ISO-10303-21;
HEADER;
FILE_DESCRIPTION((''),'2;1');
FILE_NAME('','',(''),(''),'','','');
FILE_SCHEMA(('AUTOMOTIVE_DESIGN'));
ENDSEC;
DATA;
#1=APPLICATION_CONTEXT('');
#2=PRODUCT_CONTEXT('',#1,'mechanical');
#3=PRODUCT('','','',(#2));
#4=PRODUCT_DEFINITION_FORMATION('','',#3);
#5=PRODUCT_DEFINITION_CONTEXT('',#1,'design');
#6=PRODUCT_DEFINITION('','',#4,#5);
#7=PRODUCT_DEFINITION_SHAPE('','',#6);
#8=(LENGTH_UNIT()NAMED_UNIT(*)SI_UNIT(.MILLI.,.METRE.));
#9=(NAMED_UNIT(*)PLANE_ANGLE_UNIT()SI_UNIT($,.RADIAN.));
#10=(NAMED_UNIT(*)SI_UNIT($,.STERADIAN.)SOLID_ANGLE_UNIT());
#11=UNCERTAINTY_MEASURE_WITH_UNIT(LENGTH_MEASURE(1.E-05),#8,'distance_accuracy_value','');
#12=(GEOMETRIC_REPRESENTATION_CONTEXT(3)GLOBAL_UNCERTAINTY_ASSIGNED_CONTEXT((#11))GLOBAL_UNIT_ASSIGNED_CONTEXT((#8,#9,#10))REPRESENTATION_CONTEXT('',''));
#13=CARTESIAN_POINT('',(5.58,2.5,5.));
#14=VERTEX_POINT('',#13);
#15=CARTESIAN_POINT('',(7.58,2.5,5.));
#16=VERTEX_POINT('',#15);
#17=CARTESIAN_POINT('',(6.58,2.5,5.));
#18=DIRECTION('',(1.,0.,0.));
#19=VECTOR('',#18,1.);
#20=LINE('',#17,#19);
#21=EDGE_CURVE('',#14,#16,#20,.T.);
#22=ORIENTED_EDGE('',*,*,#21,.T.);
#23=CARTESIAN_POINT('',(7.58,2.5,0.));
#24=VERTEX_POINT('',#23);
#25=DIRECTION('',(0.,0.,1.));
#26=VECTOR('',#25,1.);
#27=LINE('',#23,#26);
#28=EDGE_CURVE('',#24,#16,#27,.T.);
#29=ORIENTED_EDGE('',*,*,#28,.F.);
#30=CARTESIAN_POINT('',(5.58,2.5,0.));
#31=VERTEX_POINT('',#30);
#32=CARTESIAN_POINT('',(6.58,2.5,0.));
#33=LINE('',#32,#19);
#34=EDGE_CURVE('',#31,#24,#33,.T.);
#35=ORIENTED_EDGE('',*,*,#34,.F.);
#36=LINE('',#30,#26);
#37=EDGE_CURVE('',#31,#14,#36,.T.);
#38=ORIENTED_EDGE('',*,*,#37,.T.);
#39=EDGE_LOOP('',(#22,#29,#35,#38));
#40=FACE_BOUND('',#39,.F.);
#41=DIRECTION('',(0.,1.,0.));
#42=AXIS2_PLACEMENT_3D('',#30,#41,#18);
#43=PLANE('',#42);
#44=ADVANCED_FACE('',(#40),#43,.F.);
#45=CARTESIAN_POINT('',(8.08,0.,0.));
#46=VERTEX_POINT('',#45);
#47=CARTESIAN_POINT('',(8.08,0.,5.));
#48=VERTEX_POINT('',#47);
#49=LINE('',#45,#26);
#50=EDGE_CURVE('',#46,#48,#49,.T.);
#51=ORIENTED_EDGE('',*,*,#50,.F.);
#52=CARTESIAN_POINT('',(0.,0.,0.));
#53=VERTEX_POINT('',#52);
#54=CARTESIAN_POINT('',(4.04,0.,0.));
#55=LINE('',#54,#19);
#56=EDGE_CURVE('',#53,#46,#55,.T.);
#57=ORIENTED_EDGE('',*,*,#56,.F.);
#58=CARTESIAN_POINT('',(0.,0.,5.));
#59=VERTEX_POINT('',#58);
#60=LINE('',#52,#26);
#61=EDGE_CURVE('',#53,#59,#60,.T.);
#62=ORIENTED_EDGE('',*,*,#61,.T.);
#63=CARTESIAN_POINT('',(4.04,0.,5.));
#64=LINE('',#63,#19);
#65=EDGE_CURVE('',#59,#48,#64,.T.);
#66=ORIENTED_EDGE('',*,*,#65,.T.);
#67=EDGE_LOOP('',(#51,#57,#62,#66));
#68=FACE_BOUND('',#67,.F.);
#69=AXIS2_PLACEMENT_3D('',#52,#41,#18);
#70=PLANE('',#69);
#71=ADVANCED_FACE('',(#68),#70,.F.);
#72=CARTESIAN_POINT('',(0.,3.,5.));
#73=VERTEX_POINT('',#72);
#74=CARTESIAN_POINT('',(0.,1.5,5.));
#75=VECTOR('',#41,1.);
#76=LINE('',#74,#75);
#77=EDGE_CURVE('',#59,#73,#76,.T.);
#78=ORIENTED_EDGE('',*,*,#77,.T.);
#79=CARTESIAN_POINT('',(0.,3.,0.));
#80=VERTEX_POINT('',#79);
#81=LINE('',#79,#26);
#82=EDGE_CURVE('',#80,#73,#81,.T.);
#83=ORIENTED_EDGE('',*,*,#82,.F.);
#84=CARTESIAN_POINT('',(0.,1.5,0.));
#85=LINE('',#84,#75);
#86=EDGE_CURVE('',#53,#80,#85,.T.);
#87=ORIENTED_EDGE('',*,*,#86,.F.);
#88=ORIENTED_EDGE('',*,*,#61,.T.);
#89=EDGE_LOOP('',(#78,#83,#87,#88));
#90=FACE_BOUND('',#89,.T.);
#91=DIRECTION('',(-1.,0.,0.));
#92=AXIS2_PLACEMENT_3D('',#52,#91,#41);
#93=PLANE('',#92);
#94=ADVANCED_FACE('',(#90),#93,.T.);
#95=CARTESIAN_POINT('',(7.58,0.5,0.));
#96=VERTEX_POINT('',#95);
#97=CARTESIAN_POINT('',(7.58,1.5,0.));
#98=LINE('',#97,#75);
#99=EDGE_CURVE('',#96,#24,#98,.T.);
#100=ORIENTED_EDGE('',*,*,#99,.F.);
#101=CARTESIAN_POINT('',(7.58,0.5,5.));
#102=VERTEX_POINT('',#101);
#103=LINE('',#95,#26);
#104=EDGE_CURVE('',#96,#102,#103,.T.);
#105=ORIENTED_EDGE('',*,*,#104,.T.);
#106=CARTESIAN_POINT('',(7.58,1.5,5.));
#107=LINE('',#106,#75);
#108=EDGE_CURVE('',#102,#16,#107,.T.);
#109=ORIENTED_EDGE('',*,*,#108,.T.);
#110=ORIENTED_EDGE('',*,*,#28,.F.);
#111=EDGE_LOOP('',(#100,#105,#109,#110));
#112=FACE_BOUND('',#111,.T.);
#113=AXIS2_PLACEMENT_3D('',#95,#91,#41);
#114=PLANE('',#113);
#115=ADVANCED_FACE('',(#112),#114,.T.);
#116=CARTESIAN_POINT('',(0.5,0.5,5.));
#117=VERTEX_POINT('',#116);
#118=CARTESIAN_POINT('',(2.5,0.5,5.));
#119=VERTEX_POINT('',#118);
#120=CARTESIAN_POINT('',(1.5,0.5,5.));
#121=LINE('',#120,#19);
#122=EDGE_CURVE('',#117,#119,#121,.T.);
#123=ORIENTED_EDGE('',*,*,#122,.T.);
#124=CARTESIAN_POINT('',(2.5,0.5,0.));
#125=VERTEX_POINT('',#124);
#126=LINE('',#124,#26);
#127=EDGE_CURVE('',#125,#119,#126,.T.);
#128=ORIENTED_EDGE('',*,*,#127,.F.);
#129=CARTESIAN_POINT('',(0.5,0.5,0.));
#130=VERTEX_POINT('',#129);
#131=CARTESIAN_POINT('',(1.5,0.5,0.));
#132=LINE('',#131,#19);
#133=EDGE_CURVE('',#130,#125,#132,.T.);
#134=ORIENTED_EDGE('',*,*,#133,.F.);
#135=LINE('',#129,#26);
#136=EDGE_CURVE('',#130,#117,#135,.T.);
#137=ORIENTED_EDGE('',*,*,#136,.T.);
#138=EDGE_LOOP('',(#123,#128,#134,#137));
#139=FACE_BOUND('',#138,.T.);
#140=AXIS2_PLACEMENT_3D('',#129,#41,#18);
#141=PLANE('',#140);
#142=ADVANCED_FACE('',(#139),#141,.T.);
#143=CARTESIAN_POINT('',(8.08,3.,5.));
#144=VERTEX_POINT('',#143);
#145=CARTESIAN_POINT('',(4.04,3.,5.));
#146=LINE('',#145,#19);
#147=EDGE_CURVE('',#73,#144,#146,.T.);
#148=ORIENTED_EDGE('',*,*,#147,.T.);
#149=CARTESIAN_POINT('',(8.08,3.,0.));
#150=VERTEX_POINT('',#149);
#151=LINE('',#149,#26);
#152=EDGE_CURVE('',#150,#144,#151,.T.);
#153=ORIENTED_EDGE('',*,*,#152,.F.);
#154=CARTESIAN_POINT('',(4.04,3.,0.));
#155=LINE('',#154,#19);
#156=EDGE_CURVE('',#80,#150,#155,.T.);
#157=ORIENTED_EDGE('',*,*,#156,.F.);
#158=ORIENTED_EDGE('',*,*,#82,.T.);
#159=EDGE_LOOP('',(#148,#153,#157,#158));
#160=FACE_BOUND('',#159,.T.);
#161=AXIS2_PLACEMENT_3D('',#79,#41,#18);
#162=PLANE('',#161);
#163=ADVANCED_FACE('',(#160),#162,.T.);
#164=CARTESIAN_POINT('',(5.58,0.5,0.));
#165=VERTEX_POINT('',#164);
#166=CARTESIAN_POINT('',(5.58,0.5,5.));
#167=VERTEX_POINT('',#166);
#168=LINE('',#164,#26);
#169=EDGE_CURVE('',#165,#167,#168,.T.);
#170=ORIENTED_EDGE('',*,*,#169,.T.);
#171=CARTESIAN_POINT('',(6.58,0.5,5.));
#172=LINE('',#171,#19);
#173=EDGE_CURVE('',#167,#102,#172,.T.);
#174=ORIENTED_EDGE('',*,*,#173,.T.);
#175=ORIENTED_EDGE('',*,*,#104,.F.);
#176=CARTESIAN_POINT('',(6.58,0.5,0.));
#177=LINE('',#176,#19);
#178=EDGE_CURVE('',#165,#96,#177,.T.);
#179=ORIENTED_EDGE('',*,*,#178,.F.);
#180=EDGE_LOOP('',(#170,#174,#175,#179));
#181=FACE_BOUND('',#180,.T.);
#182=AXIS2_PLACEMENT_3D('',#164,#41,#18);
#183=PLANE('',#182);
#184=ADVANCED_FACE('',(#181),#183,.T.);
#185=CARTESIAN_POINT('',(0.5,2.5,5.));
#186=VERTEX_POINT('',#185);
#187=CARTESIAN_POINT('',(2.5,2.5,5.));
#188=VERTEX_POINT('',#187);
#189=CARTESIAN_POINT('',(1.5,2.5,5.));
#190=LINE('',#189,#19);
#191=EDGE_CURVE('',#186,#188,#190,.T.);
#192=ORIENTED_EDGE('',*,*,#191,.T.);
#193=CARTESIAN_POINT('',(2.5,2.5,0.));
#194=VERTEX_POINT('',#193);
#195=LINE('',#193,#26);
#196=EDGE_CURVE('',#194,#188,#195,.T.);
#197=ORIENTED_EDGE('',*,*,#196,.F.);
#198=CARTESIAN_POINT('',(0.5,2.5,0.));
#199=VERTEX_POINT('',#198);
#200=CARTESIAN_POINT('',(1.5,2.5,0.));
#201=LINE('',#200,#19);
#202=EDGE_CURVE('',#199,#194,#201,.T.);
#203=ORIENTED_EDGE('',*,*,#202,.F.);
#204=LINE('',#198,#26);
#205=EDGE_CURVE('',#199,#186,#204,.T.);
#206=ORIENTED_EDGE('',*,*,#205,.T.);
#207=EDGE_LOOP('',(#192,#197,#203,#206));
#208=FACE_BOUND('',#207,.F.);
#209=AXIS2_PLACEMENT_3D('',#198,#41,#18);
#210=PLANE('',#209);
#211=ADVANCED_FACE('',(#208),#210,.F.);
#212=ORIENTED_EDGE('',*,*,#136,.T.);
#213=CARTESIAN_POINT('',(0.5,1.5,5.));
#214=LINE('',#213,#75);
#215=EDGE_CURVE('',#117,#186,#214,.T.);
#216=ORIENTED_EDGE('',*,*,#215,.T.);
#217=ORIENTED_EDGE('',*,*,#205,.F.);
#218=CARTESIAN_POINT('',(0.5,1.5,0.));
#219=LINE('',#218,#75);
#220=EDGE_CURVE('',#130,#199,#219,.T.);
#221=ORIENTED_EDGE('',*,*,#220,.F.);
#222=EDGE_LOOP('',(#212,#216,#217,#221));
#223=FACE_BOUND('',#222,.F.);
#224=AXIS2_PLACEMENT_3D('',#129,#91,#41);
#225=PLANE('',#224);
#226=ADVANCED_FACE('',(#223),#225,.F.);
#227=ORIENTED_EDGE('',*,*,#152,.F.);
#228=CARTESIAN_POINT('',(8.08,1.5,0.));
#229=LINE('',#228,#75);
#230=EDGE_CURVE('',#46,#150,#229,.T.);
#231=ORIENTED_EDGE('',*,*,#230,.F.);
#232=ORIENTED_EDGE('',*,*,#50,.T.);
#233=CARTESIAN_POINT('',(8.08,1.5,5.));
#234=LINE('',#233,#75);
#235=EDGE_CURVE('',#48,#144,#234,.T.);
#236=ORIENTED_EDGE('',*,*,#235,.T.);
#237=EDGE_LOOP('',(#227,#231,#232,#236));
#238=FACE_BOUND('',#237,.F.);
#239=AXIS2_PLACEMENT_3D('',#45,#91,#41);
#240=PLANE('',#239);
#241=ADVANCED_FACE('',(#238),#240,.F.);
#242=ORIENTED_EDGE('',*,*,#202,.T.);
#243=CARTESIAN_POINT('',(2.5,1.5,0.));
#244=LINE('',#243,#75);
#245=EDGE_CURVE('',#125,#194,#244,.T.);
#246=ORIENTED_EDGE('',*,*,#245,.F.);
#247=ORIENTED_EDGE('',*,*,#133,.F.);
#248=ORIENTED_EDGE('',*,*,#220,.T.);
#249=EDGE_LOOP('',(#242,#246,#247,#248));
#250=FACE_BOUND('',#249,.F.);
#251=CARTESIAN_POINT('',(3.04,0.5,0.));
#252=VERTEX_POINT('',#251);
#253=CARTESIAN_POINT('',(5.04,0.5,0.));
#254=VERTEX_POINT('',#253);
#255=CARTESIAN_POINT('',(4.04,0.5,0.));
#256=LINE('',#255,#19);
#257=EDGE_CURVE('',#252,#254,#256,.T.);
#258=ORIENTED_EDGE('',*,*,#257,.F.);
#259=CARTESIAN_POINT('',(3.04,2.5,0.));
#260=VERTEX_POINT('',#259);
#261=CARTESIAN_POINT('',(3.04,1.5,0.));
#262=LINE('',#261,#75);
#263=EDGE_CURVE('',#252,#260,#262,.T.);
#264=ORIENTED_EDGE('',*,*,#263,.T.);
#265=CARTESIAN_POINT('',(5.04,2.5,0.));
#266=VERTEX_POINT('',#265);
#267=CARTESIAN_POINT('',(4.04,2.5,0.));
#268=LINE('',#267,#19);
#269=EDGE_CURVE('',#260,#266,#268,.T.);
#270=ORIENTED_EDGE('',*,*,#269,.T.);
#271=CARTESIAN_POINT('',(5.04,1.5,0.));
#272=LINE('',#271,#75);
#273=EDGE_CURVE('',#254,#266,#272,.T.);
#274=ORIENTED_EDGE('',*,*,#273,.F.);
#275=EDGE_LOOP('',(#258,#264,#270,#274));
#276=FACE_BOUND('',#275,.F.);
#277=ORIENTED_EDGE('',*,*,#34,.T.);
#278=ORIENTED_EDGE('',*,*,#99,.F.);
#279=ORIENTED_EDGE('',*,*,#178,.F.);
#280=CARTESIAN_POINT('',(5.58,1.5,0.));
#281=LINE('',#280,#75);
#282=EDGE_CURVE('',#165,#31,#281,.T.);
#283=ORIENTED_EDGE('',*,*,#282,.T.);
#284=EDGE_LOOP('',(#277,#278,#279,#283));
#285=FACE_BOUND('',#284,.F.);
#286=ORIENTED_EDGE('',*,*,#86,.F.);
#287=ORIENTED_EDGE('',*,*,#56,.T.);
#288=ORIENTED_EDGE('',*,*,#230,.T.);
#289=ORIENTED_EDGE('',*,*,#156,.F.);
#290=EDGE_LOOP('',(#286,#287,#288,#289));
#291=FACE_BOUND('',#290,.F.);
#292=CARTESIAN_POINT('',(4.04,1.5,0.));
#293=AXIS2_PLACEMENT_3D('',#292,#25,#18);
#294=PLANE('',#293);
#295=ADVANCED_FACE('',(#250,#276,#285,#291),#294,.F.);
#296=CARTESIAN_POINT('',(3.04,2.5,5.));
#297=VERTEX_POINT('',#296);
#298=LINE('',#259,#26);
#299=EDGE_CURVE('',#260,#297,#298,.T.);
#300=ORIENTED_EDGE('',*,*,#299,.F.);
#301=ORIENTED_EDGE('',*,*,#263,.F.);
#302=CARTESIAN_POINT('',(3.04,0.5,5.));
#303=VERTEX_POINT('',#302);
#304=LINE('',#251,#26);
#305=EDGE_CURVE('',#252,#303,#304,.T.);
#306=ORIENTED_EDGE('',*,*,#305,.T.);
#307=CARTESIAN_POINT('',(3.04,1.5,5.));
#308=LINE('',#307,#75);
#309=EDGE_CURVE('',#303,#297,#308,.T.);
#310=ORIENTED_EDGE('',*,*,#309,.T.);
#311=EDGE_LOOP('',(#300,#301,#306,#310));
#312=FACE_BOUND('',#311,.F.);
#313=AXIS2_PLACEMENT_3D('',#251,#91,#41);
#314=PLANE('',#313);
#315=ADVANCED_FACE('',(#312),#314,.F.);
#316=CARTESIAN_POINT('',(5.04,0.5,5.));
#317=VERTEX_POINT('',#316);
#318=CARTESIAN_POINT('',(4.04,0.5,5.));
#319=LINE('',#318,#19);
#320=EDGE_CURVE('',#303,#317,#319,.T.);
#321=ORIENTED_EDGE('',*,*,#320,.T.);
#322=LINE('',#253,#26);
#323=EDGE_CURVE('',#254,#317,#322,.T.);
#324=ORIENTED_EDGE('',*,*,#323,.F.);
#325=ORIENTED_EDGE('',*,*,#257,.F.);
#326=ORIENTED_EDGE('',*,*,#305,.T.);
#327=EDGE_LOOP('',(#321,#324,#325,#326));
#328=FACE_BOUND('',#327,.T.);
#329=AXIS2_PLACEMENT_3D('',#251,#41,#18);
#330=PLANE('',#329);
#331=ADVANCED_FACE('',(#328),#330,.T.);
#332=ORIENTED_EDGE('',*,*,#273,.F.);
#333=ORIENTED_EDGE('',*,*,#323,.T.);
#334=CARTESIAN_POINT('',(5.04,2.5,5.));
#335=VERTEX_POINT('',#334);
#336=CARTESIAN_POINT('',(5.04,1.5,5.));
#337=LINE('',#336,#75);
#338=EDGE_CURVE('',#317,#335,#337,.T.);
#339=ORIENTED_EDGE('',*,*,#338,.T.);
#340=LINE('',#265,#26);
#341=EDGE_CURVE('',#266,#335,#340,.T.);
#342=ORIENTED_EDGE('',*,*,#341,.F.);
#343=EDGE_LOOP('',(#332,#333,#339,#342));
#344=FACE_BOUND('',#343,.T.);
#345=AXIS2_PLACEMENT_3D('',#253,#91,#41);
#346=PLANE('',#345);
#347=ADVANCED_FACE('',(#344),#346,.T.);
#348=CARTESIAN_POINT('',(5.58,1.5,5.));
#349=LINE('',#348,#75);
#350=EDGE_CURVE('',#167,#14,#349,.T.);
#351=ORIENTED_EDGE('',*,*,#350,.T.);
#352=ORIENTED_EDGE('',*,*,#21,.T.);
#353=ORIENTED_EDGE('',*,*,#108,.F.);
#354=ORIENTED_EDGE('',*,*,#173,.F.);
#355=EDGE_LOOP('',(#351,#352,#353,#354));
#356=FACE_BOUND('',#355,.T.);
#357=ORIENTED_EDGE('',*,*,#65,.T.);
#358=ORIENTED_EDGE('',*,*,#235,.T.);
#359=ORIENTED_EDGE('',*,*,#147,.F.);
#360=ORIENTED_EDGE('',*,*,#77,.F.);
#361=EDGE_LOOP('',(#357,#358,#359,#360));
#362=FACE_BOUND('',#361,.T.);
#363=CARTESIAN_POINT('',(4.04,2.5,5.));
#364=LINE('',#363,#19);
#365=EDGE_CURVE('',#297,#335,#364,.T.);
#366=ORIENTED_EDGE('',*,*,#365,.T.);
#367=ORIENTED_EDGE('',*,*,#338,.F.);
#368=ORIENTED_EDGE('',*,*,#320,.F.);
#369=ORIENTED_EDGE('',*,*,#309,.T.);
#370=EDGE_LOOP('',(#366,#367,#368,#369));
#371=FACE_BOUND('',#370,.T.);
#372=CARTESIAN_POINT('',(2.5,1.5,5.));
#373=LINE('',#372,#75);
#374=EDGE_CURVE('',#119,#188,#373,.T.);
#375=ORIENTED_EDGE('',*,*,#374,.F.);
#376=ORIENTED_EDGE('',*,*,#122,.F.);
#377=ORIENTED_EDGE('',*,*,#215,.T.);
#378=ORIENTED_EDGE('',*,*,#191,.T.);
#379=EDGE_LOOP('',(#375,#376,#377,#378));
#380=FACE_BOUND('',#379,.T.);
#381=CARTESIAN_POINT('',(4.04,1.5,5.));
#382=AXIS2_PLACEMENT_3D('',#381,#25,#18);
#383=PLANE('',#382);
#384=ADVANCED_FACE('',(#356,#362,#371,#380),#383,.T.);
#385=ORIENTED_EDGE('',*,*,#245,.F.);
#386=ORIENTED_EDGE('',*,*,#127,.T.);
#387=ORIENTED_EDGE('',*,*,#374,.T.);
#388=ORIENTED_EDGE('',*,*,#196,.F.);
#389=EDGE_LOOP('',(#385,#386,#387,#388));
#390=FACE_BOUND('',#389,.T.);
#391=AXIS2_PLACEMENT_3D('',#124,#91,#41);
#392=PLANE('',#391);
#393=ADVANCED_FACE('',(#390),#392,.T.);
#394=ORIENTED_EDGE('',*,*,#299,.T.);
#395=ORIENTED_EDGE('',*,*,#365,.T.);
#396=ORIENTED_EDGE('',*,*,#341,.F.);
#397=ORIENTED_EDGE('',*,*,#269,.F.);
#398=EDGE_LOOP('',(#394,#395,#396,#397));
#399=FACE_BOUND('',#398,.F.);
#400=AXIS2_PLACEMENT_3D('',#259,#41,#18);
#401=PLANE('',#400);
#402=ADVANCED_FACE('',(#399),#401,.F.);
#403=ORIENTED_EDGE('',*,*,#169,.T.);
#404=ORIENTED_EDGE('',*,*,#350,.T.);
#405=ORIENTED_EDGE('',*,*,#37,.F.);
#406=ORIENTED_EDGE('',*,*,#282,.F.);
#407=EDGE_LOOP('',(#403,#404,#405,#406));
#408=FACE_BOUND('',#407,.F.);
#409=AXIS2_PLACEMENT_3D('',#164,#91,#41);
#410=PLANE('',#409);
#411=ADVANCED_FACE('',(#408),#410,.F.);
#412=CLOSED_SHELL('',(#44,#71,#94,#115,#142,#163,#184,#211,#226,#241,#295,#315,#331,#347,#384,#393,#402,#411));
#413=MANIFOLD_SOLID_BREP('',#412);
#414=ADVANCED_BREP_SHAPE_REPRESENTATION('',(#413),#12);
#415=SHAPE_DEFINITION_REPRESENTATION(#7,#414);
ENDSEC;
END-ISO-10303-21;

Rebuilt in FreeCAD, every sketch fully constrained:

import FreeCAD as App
import Part
import Sketcher


def add_polygon(sketch, points):
    """Adds a closed chain of lines whose ends are joined by coincident constraints."""
    first, n = sketch.GeometryCount, len(points)
    for a, b in zip(points, points[1:] + points[:1]):
        sketch.addGeometry(Part.LineSegment(App.Vector(*a, 0), App.Vector(*b, 0)), False)
    for i in range(n):
        sketch.addConstraint(Sketcher.Constraint("Coincident", first + i, 2, first + (i + 1) % n, 1))

doc = App.newDocument("Part")
body = doc.addObject("PartDesign::Body", "Body")

sketch1 = body.newObject("Sketcher::SketchObject", "Sketch")
sketch1.AttachmentSupport = (doc.getObject("XY_Plane"), [""])
sketch1.MapMode = "FlatFace"
add_polygon(sketch1, [(0, 3), (0, 0), (8.1, 0), (8.1, 3)])
add_polygon(sketch1, [(2.5, 0.5), (0.5, 0.5), (0.5, 2.5), (2.5, 2.5)])
add_polygon(sketch1, [(5, 0.5), (3, 0.5), (3, 2.5), (5, 2.5)])
add_polygon(sketch1, [(7.6, 0.5), (5.6, 0.5), (5.6, 2.5), (7.6, 2.5)])
sketch1.addConstraint([
    Sketcher.Constraint("Vertical", 0),
    Sketcher.Constraint("Horizontal", 1),
    Sketcher.Constraint("Vertical", 2),
    Sketcher.Constraint("Horizontal", 3),
    Sketcher.Constraint("Horizontal", 4),
    Sketcher.Constraint("Vertical", 5),
    Sketcher.Constraint("Horizontal", 6),
    Sketcher.Constraint("Vertical", 7),
    Sketcher.Constraint("Horizontal", 8),
    Sketcher.Constraint("Vertical", 9),
    Sketcher.Constraint("Horizontal", 10),
    Sketcher.Constraint("Vertical", 11),
    Sketcher.Constraint("Horizontal", 12),
    Sketcher.Constraint("Vertical", 13),
    Sketcher.Constraint("Horizontal", 14),
    Sketcher.Constraint("Vertical", 15),
    Sketcher.Constraint("Coincident", 0, 2, -1, 1),
    Sketcher.Constraint("Horizontal", 7, 2, 8, 2),
    Sketcher.Constraint("Horizontal", 6, 2, 9, 2),
    Sketcher.Constraint("Horizontal", 11, 2, 12, 2),
    Sketcher.Constraint("Horizontal", 10, 2, 13, 2),
    Sketcher.Constraint("Equal", 6, 8),
    Sketcher.Constraint("Equal", 10, 12),
    Sketcher.Constraint("Equal", 14, 5),
    Sketcher.Constraint("DistanceX", 4, 2, 4, 1, 2.0),
    Sketcher.Constraint("DistanceY", 0, 2, 0, 1, 3.0),
    Sketcher.Constraint("DistanceX", 1, 1, 1, 2, 8.08),
    Sketcher.Constraint("DistanceX", -1, 1, 4, 2, 0.5),
    Sketcher.Constraint("DistanceY", -1, 1, 4, 2, 0.5),
    Sketcher.Constraint("DistanceX", 12, 2, 1, 2, 2.5),
    Sketcher.Constraint("DistanceX", -1, 1, 8, 2, 3.04),
])
pad1 = body.newObject("PartDesign::Pad", "Pad")
pad1.Profile = sketch1
pad1.Length = 5

doc.recompute()
